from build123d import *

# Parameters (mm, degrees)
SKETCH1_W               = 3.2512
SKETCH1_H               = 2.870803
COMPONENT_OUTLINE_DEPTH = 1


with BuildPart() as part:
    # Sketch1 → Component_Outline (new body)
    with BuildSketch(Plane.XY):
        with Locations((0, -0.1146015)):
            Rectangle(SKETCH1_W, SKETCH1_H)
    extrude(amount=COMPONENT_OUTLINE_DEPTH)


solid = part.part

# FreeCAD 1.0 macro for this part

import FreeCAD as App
import Part
import Sketcher
Q = App.Units.Quantity


def add_polygon(sketch, points):
    """Adds a closed chain of lines whose ends are joined by coincident constraints."""
    first, n = sketch.GeometryCount, len(points)
    for a, b in zip(points, points[1:] + points[:1]):
        sketch.addGeometry(Part.LineSegment(App.Vector(*a, 0), App.Vector(*b, 0)), False)
    for i in range(n):
        sketch.addConstraint(Sketcher.Constraint("Coincident", first + i, 2, first + (i + 1) % n, 1))

doc = App.newDocument("Part")
body = doc.addObject("PartDesign::Body", "Body")

sketch1 = body.newObject("Sketcher::SketchObject", "Sketch")
sketch1.AttachmentSupport = (doc.getObject("XY_Plane"), [""])
sketch1.MapMode = "FlatFace"
add_polygon(sketch1, [(-1.6256, 1.3208), (-1.6256, -1.550003), (1.6256, -1.550003), (1.6256, 1.3208)])
sketch1.addConstraint(Sketcher.Constraint("Vertical", 0))
sketch1.addConstraint(Sketcher.Constraint("Horizontal", 1))
sketch1.addConstraint(Sketcher.Constraint("Vertical", 2))
sketch1.addConstraint(Sketcher.Constraint("Horizontal", 3))
sketch1.addConstraint(Sketcher.Constraint("DistanceX", 1, 1, 1, 2, Q("3.2512 mm")))
sketch1.addConstraint(Sketcher.Constraint("DistanceX", 0, 2, -1, 1, Q("1.6256 mm")))
sketch1.addConstraint(Sketcher.Constraint("DistanceY", -1, 1, 2, 2, Q("1.3208 mm")))
sketch1.addConstraint(Sketcher.Constraint("DistanceY", 0, 2, 0, 1, Q("2.870803 mm")))
pad1 = body.newObject("PartDesign::Pad", "Pad")
pad1.Profile = sketch1
pad1.Length = 1

doc.recompute()
